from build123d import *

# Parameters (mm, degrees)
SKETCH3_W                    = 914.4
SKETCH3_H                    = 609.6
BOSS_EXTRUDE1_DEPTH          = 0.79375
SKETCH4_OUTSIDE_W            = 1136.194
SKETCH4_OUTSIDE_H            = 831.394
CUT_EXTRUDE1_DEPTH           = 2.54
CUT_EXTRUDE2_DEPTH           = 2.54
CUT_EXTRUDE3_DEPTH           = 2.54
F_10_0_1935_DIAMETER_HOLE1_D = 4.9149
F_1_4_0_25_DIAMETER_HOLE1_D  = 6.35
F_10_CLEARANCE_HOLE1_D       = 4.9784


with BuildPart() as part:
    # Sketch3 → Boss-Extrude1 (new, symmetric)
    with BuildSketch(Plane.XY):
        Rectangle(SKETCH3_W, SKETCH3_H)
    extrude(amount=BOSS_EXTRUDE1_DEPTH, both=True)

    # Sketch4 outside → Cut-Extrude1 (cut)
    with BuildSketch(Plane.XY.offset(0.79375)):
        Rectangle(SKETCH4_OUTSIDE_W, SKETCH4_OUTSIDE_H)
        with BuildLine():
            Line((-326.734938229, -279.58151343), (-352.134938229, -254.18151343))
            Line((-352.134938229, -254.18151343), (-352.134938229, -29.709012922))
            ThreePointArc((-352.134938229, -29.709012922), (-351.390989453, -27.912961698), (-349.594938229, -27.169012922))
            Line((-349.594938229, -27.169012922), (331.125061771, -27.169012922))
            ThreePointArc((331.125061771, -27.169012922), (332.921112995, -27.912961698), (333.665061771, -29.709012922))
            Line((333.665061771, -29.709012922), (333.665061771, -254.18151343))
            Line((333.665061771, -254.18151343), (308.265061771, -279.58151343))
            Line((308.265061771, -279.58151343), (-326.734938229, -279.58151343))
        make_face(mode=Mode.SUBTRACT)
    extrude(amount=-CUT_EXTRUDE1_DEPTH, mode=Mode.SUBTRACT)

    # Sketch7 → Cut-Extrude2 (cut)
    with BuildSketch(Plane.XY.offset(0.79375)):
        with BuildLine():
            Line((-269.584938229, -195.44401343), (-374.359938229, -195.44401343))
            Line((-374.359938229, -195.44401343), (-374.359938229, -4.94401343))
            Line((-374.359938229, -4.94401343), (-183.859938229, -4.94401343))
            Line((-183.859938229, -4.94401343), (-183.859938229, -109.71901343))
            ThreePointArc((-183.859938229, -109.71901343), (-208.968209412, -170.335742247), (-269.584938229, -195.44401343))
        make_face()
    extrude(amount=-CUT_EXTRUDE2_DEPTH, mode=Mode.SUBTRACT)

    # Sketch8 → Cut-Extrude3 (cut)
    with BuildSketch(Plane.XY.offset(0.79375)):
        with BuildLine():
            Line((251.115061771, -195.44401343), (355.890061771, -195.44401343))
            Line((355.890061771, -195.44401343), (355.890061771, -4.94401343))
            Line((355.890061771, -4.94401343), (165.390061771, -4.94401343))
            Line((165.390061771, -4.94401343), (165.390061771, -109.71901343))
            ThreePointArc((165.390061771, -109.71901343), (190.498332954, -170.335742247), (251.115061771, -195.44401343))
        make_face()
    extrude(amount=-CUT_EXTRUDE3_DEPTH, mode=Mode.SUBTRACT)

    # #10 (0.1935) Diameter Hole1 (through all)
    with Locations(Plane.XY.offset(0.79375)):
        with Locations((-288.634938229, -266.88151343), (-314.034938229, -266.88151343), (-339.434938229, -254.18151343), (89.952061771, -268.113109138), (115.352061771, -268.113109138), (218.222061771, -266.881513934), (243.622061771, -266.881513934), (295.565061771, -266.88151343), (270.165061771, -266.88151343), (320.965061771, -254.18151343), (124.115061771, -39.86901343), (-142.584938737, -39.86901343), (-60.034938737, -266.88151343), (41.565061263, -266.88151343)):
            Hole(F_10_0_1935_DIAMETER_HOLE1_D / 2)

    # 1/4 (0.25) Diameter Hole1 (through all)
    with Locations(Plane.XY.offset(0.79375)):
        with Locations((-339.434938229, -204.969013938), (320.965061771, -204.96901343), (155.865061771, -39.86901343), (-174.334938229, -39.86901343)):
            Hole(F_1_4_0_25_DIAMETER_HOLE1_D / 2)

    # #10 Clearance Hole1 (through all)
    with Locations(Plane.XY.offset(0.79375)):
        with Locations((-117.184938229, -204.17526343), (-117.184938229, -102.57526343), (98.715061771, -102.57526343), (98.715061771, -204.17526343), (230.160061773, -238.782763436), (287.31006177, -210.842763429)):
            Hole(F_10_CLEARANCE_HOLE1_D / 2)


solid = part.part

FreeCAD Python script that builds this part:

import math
import FreeCAD as App
import Part
import Sketcher
from FreeCAD import Vector
Q = App.Units.Quantity

doc = App.newDocument("Part")
body = doc.addObject("PartDesign::Body", "Body")

# Sketch on XY plane
sketch1 = body.newObject("Sketcher::SketchObject", "Sketch")
sketch1.AttachmentSupport = (doc.getObject("XY_Plane"), [""])
sketch1.MapMode = "FlatFace"
sketch1.addGeometry(Part.LineSegment(Vector(-457, 305, 0), Vector(-457, -305, 0)), False)
sketch1.addGeometry(Part.LineSegment(Vector(-457, -305, 0), Vector(457, -305, 0)), False)
sketch1.addGeometry(Part.LineSegment(Vector(457, -305, 0), Vector(457, 305, 0)), False)
sketch1.addGeometry(Part.LineSegment(Vector(457, 305, 0), Vector(-457, 305, 0)), False)
sketch1.addConstraint(Sketcher.Constraint("Coincident", 0, 2, 1, 1))
sketch1.addConstraint(Sketcher.Constraint("Coincident", 1, 2, 2, 1))
sketch1.addConstraint(Sketcher.Constraint("Coincident", 2, 2, 3, 1))
sketch1.addConstraint(Sketcher.Constraint("Coincident", 3, 2, 0, 1))
sketch1.addConstraint(Sketcher.Constraint("Vertical", 0))
sketch1.addConstraint(Sketcher.Constraint("Horizontal", 1))
sketch1.addConstraint(Sketcher.Constraint("Vertical", 2))
sketch1.addConstraint(Sketcher.Constraint("Horizontal", 3))
sketch1.addConstraint(Sketcher.Constraint("Symmetric", 0, 2, 2, 2, -1, 1))
sketch1.addConstraint(Sketcher.Constraint("DistanceX", 1, 1, 1, 2, Q("36 in")))
sketch1.addConstraint(Sketcher.Constraint("DistanceY", 0, 2, 0, 1, Q("24 in")))
pad1 = body.newObject("PartDesign::Pad", "Pad")
pad1.Profile = sketch1
pad1.Length = Q("0.0625 in")
pad1.Midplane = True

# Sketch on XY plane
sketch2 = body.newObject("Sketcher::SketchObject", "Sketch001")
sketch2.AttachmentSupport = (doc.getObject("XY_Plane"), [""])
sketch2.MapMode = "FlatFace"
sketch2.AttachmentOffset = App.Placement(Vector(0, 0, 0.03125 * 25.4), App.Rotation())
sketch2.addGeometry(Part.LineSegment(Vector(-568.1, 415.7, 0), Vector(-568.1, -415.7, 0)), False)
sketch2.addGeometry(Part.LineSegment(Vector(-568.1, -415.7, 0), Vector(568.1, -415.7, 0)), False)
sketch2.addGeometry(Part.LineSegment(Vector(568.1, -415.7, 0), Vector(568.1, 415.7, 0)), False)
sketch2.addGeometry(Part.LineSegment(Vector(568.1, 415.7, 0), Vector(-568.1, 415.7, 0)), False)
sketch2.addGeometry(Part.LineSegment(Vector(308.3, -279.6, 0), Vector(-326.7, -279.6, 0)), False)
sketch2.addGeometry(Part.LineSegment(Vector(-326.7, -279.6, 0), Vector(-352.1, -254.2, 0)), False)
sketch2.addGeometry(Part.LineSegment(Vector(-352.1, -254.2, 0), Vector(-352.1, -29.7, 0)), False)
sketch2.addGeometry(Part.ArcOfCircle(Part.Circle(Vector(-349.6, -29.7, 0), Vector(0, 0, 1), 2.5), math.radians(90), math.radians(180)), False)
sketch2.addGeometry(Part.LineSegment(Vector(-349.6, -27.2, 0), Vector(331.1, -27.2, 0)), False)
sketch2.addGeometry(Part.ArcOfCircle(Part.Circle(Vector(331.1, -29.7, 0), Vector(0, 0, 1), 2.5), math.radians(0), math.radians(90)), False)
sketch2.addGeometry(Part.LineSegment(Vector(333.7, -29.7, 0), Vector(333.7, -254.2, 0)), False)
sketch2.addGeometry(Part.LineSegment(Vector(333.7, -254.2, 0), Vector(308.3, -279.6, 0)), False)
sketch2.addConstraint(Sketcher.Constraint("Coincident", 0, 2, 1, 1))
sketch2.addConstraint(Sketcher.Constraint("Coincident", 1, 2, 2, 1))
sketch2.addConstraint(Sketcher.Constraint("Coincident", 2, 2, 3, 1))
sketch2.addConstraint(Sketcher.Constraint("Coincident", 3, 2, 0, 1))
sketch2.addConstraint(Sketcher.Constraint("Coincident", 4, 2, 5, 1))
sketch2.addConstraint(Sketcher.Constraint("Coincident", 5, 2, 6, 1))
sketch2.addConstraint(Sketcher.Constraint("Tangent", 6, 2, 7, 2))
sketch2.addConstraint(Sketcher.Constraint("Tangent", 7, 1, 8, 1))
sketch2.addConstraint(Sketcher.Constraint("Tangent", 8, 2, 9, 2))
sketch2.addConstraint(Sketcher.Constraint("Tangent", 9, 1, 10, 1))
sketch2.addConstraint(Sketcher.Constraint("Coincident", 10, 2, 11, 1))
sketch2.addConstraint(Sketcher.Constraint("Coincident", 11, 2, 4, 1))
sketch2.addConstraint(Sketcher.Constraint("Vertical", 0))
sketch2.addConstraint(Sketcher.Constraint("Horizontal", 1))
sketch2.addConstraint(Sketcher.Constraint("Vertical", 2))
sketch2.addConstraint(Sketcher.Constraint("Horizontal", 3))
sketch2.addConstraint(Sketcher.Constraint("Horizontal", 4))
sketch2.addConstraint(Sketcher.Constraint("Vertical", 6))
sketch2.addConstraint(Sketcher.Constraint("Horizontal", 8))
sketch2.addConstraint(Sketcher.Constraint("Vertical", 10))
sketch2.addConstraint(Sketcher.Constraint("Equal", 7, 9))
sketch2.addConstraint(Sketcher.Constraint("Symmetric", 0, 2, 2, 2, -1, 1))
sketch2.addConstraint(Sketcher.Constraint("Perpendicular", 5, 11))
sketch2.addConstraint(Sketcher.Constraint("Horizontal", 5, 2, 10, 2))
sketch2.addConstraint(Sketcher.Constraint("Equal", 5, 11))
sketch2.addConstraint(Sketcher.Constraint("Radius", 7, Q("0.1 in")))
sketch2.addConstraint(Sketcher.Constraint("DistanceX", 4, 2, 4, 1, Q("25 in")))
sketch2.addConstraint(Sketcher.Constraint("DistanceX", 8, 1, 8, 2, Q("26.8 in")))
sketch2.addConstraint(Sketcher.Constraint("DistanceY", 6, 1, 6, 2, Q("8.8375 in")))
sketch2.addConstraint(Sketcher.Constraint("DistanceX", 1, 1, 1, 2, Q("1136.194 mm")))
sketch2.addConstraint(Sketcher.Constraint("DistanceY", 0, 2, 0, 1, Q("831.394 mm")))
sketch2.addConstraint(Sketcher.Constraint("DistanceX", 7, 3, -1, 1, Q("349.594938 mm")))
sketch2.addConstraint(Sketcher.Constraint("DistanceY", 7, 3, -1, 1, Q("29.709013 mm")))
pocket1 = body.newObject("PartDesign::Pocket", "Pocket")
pocket1.Profile = sketch2
pocket1.Length = Q("0.1 in")

# Sketch on XY plane
sketch3 = body.newObject("Sketcher::SketchObject", "Sketch002")
sketch3.AttachmentSupport = (doc.getObject("XY_Plane"), [""])
sketch3.MapMode = "FlatFace"
sketch3.AttachmentOffset = App.Placement(Vector(0, 0, 0.03125 * 25.4), App.Rotation())
sketch3.addGeometry(Part.LineSegment(Vector(-374, -195, 0), Vector(-270, -195, 0)), False)
sketch3.addGeometry(Part.ArcOfCircle(Part.Circle(Vector(-270, -110, 0), Vector(0, 0, 1), 86), math.radians(-90), math.radians(0)), False)
sketch3.addGeometry(Part.LineSegment(Vector(-184, -110, 0), Vector(-184, -5, 0)), False)
sketch3.addGeometry(Part.LineSegment(Vector(-184, -5, 0), Vector(-374, -5, 0)), False)
sketch3.addGeometry(Part.LineSegment(Vector(-374, -5, 0), Vector(-374, -195, 0)), False)
sketch3.addConstraint(Sketcher.Constraint("Tangent", 0, 2, 1, 1))
sketch3.addConstraint(Sketcher.Constraint("Tangent", 1, 2, 2, 1))
sketch3.addConstraint(Sketcher.Constraint("Coincident", 2, 2, 3, 1))
sketch3.addConstraint(Sketcher.Constraint("Coincident", 3, 2, 4, 1))
sketch3.addConstraint(Sketcher.Constraint("Coincident", 4, 2, 0, 1))
sketch3.addConstraint(Sketcher.Constraint("Horizontal", 0))
sketch3.addConstraint(Sketcher.Constraint("Vertical", 2))
sketch3.addConstraint(Sketcher.Constraint("Horizontal", 3))
sketch3.addConstraint(Sketcher.Constraint("Vertical", 4))
sketch3.addConstraint(Sketcher.Constraint("Equal", 0, 2))
sketch3.addConstraint(Sketcher.Constraint("DistanceX", 3, 2, 3, 1, Q("7.5 in")))
sketch3.addConstraint(Sketcher.Constraint("Radius", 1, Q("3.375 in")))
sketch3.addConstraint(Sketcher.Constraint("DistanceX", 1, 3, -1, 1, Q("269.584938 mm")))
sketch3.addConstraint(Sketcher.Constraint("DistanceY", 1, 3, -1, 1, Q("109.719013 mm")))
pocket2 = body.newObject("PartDesign::Pocket", "Pocket001")
pocket2.Profile = sketch3
pocket2.Length = Q("0.1 in")

# Sketch on XY plane
sketch4 = body.newObject("Sketcher::SketchObject", "Sketch003")
sketch4.AttachmentSupport = (doc.getObject("XY_Plane"), [""])
sketch4.MapMode = "FlatFace"
sketch4.AttachmentOffset = App.Placement(Vector(0, 0, 0.03125 * 25.4), App.Rotation())
sketch4.addGeometry(Part.LineSegment(Vector(251, -195, 0), Vector(356, -195, 0)), False)
sketch4.addGeometry(Part.LineSegment(Vector(356, -195, 0), Vector(356, -5, 0)), False)
sketch4.addGeometry(Part.LineSegment(Vector(356, -5, 0), Vector(165, -5, 0)), False)
sketch4.addGeometry(Part.LineSegment(Vector(165, -5, 0), Vector(165, -110, 0)), False)
sketch4.addGeometry(Part.ArcOfCircle(Part.Circle(Vector(251, -110, 0), Vector(0, 0, 1), 86), math.radians(-180), math.radians(-90)), False)
sketch4.addConstraint(Sketcher.Constraint("Coincident", 0, 2, 1, 1))
sketch4.addConstraint(Sketcher.Constraint("Coincident", 1, 2, 2, 1))
sketch4.addConstraint(Sketcher.Constraint("Coincident", 2, 2, 3, 1))
sketch4.addConstraint(Sketcher.Constraint("Tangent", 3, 2, 4, 1))
sketch4.addConstraint(Sketcher.Constraint("Tangent", 4, 2, 0, 1))
sketch4.addConstraint(Sketcher.Constraint("Horizontal", 0))
sketch4.addConstraint(Sketcher.Constraint("Vertical", 1))
sketch4.addConstraint(Sketcher.Constraint("Horizontal", 2))
sketch4.addConstraint(Sketcher.Constraint("Vertical", 3))
sketch4.addConstraint(Sketcher.Constraint("Equal", 2, 1))
sketch4.addConstraint(Sketcher.Constraint("DistanceX", 2, 2, 2, 1, Q("7.5 in")))
sketch4.addConstraint(Sketcher.Constraint("Radius", 4, Q("3.375 in")))
sketch4.addConstraint(Sketcher.Constraint("DistanceX", -1, 1, 4, 3, Q("251.115062 mm")))
sketch4.addConstraint(Sketcher.Constraint("DistanceY", 4, 3, -1, 1, Q("109.719013 mm")))
pocket3 = body.newObject("PartDesign::Pocket", "Pocket002")
pocket3.Profile = sketch4
pocket3.Length = Q("0.1 in")

# Sketch on XY plane
sketch5 = body.newObject("Sketcher::SketchObject", "Sketch004")
sketch5.AttachmentSupport = (doc.getObject("XY_Plane"), [""])
sketch5.MapMode = "FlatFace"
sketch5.AttachmentOffset = App.Placement(Vector(0, 0, 0.03125 * 25.4), App.Rotation())
sketch5.addGeometry(Part.Circle(Vector(-288.6, -266.9, 0), Vector(0, 0, 1), 2.5), False)
sketch5.addGeometry(Part.Circle(Vector(-314, -266.9, 0), Vector(0, 0, 1), 2.5), False)
sketch5.addGeometry(Part.Circle(Vector(-339.4, -254.2, 0), Vector(0, 0, 1), 2.5), False)
sketch5.addGeometry(Part.Circle(Vector(90, -268.1, 0), Vector(0, 0, 1), 2.5), False)
sketch5.addGeometry(Part.Circle(Vector(115.4, -268.1, 0), Vector(0, 0, 1), 2.5), False)
sketch5.addGeometry(Part.Circle(Vector(218.2, -266.9, 0), Vector(0, 0, 1), 2.5), False)
sketch5.addGeometry(Part.Circle(Vector(243.6, -266.9, 0), Vector(0, 0, 1), 2.5), False)
sketch5.addGeometry(Part.Circle(Vector(295.6, -266.9, 0), Vector(0, 0, 1), 2.5), False)
sketch5.addGeometry(Part.Circle(Vector(270.2, -266.9, 0), Vector(0, 0, 1), 2.5), False)
sketch5.addGeometry(Part.Circle(Vector(321, -254.2, 0), Vector(0, 0, 1), 2.5), False)
sketch5.addGeometry(Part.Circle(Vector(124.1, -39.9, 0), Vector(0, 0, 1), 2.5), False)
sketch5.addGeometry(Part.Circle(Vector(-142.6, -39.9, 0), Vector(0, 0, 1), 2.5), False)
sketch5.addGeometry(Part.Circle(Vector(-60, -266.9, 0), Vector(0, 0, 1), 2.5), False)
sketch5.addGeometry(Part.Circle(Vector(41.6, -266.9, 0), Vector(0, 0, 1), 2.5), False)
sketch5.addConstraint(Sketcher.Constraint("Equal", 0, 1))
sketch5.addConstraint(Sketcher.Constraint("Equal", 1, 2))
sketch5.addConstraint(Sketcher.Constraint("Equal", 2, 3))
sketch5.addConstraint(Sketcher.Constraint("Equal", 3, 4))
sketch5.addConstraint(Sketcher.Constraint("Equal", 4, 5))
sketch5.addConstraint(Sketcher.Constraint("Equal", 5, 6))
sketch5.addConstraint(Sketcher.Constraint("Equal", 6, 7))
sketch5.addConstraint(Sketcher.Constraint("Equal", 7, 8))
sketch5.addConstraint(Sketcher.Constraint("Equal", 8, 9))
sketch5.addConstraint(Sketcher.Constraint("Equal", 9, 10))
sketch5.addConstraint(Sketcher.Constraint("Equal", 10, 11))
sketch5.addConstraint(Sketcher.Constraint("Equal", 11, 12))
sketch5.addConstraint(Sketcher.Constraint("Equal", 12, 13))
sketch5.addConstraint(Sketcher.Constraint("Horizontal", 0, 3, 1, 3))
sketch5.addConstraint(Sketcher.Constraint("Horizontal", 3, 3, 4, 3))
sketch5.addConstraint(Sketcher.Constraint("Horizontal", 1, 3, 5, 3))
sketch5.addConstraint(Sketcher.Constraint("Horizontal", 5, 3, 6, 3))
sketch5.addConstraint(Sketcher.Constraint("Horizontal", 6, 3, 7, 3))
sketch5.addConstraint(Sketcher.Constraint("Horizontal", 7, 3, 8, 3))
sketch5.addConstraint(Sketcher.Constraint("Horizontal", 2, 3, 9, 3))
sketch5.addConstraint(Sketcher.Constraint("Horizontal", 10, 3, 11, 3))
sketch5.addConstraint(Sketcher.Constraint("Horizontal", 8, 3, 12, 3))
sketch5.addConstraint(Sketcher.Constraint("Horizontal", 12, 3, 13, 3))
sketch5.addConstraint(Sketcher.Constraint("DistanceX", 1, 3, 0, 3, Q("1 in")))
sketch5.addConstraint(Sketcher.Constraint("DistanceX", 2, 3, 1, 3, Q("1 in")))
sketch5.addConstraint(Sketcher.Constraint("DistanceX", 3, 3, 4, 3, Q("1 in")))
sketch5.addConstraint(Sketcher.Constraint("DistanceX", 5, 3, 6, 3, Q("1 in")))
sketch5.addConstraint(Sketcher.Constraint("DistanceX", 0, 3, 7, 3, Q("23 in")))
sketch5.addConstraint(Sketcher.Constraint("DistanceX", 8, 3, 7, 3, Q("1 in")))
sketch5.addConstraint(Sketcher.Constraint("DistanceX", 7, 3, 9, 3, Q("1 in")))
sketch5.addConstraint(Sketcher.Constraint("DistanceX", 0, 3, 12, 3, Q("9 in")))
sketch5.addConstraint(Sketcher.Constraint("DistanceX", 12, 3, 13, 3, Q("4 in")))
sketch5.addConstraint(Sketcher.Constraint("Diameter", 0, Q("0.1935 in")))
sketch5.addConstraint(Sketcher.Constraint("DistanceY", 1, 3, 2, 3, Q("0.5 in")))
sketch5.addConstraint(Sketcher.Constraint("DistanceX", 11, 3, 10, 3, Q("10.5 in")))
sketch5.addConstraint(Sketcher.Constraint("DistanceX", 4, 3, 5, 3, Q("4.05 in")))
sketch5.addConstraint(Sketcher.Constraint("DistanceX", 10, 3, 8, 3, Q("5.75 in")))
sketch5.addConstraint(Sketcher.Constraint("DistanceX", 0, 3, 3, 3, Q("14.905 in")))
sketch5.addConstraint(Sketcher.Constraint("DistanceY", 5, 3, 10, 3, Q("8.9375 in")))
sketch5.addConstraint(Sketcher.Constraint("DistanceX", 0, 3, -1, 1, Q("288.634938 mm")))
sketch5.addConstraint(Sketcher.Constraint("DistanceY", 3, 3, -1, 1, Q("268.113109 mm")))
sketch5.addConstraint(Sketcher.Constraint("DistanceY", 0, 3, -1, 1, Q("266.881513 mm")))
doc.recompute()
hole = body.newObject("PartDesign::Hole", "Hole")
hole.Profile = sketch5
hole.ThreadType = "None"
hole.Diameter = Q("0.1935 in")
hole.DepthType = "ThroughAll"

# Sketch on XY plane
sketch6 = body.newObject("Sketcher::SketchObject", "Sketch005")
sketch6.AttachmentSupport = (doc.getObject("XY_Plane"), [""])
sketch6.MapMode = "FlatFace"
sketch6.AttachmentOffset = App.Placement(Vector(0, 0, 0.03125 * 25.4), App.Rotation())
sketch6.addGeometry(Part.Circle(Vector(-339.4, -205, 0), Vector(0, 0, 1), 3.2), False)
sketch6.addGeometry(Part.Circle(Vector(321, -205, 0), Vector(0, 0, 1), 3.2), False)
sketch6.addGeometry(Part.Circle(Vector(155.9, -39.9, 0), Vector(0, 0, 1), 3.2), False)
sketch6.addGeometry(Part.Circle(Vector(-174.3, -39.9, 0), Vector(0, 0, 1), 3.2), False)
sketch6.addConstraint(Sketcher.Constraint("Equal", 0, 1))
sketch6.addConstraint(Sketcher.Constraint("Equal", 1, 2))
sketch6.addConstraint(Sketcher.Constraint("Equal", 2, 3))
sketch6.addConstraint(Sketcher.Constraint("Horizontal", 0, 3, 1, 3))
sketch6.addConstraint(Sketcher.Constraint("Horizontal", 2, 3, 3, 3))
sketch6.addConstraint(Sketcher.Constraint("Diameter", 0, Q("0.25 in")))
sketch6.addConstraint(Sketcher.Constraint("DistanceX", 0, 3, 1, 3, Q("26 in")))
sketch6.addConstraint(Sketcher.Constraint("DistanceX", 3, 3, 2, 3, Q("13 in")))
sketch6.addConstraint(Sketcher.Constraint("DistanceX", 2, 3, 1, 3, Q("6.5 in")))
sketch6.addConstraint(Sketcher.Constraint("DistanceY", 1, 3, 2, 3, Q("6.5 in")))
sketch6.addConstraint(Sketcher.Constraint("DistanceX", 0, 3, -1, 1, Q("339.434938 mm")))
sketch6.addConstraint(Sketcher.Constraint("DistanceY", 0, 3, -1, 1, Q("204.969014 mm")))
doc.recompute()
hole2 = body.newObject("PartDesign::Hole", "Hole001")
hole2.Profile = sketch6
hole2.ThreadType = "None"
hole2.Diameter = Q("0.25 in")
hole2.DepthType = "ThroughAll"

# Sketch on XY plane
sketch7 = body.newObject("Sketcher::SketchObject", "Sketch006")
sketch7.AttachmentSupport = (doc.getObject("XY_Plane"), [""])
sketch7.MapMode = "FlatFace"
sketch7.AttachmentOffset = App.Placement(Vector(0, 0, 0.03125 * 25.4), App.Rotation())
sketch7.addGeometry(Part.Circle(Vector(-117.2, -204.2, 0), Vector(0, 0, 1), 2.5), False)
sketch7.addGeometry(Part.Circle(Vector(-117.2, -102.6, 0), Vector(0, 0, 1), 2.5), False)
sketch7.addGeometry(Part.Circle(Vector(98.7, -102.6, 0), Vector(0, 0, 1), 2.5), False)
sketch7.addGeometry(Part.Circle(Vector(98.7, -204.2, 0), Vector(0, 0, 1), 2.5), False)
sketch7.addGeometry(Part.Circle(Vector(230.2, -238.8, 0), Vector(0, 0, 1), 2.5), False)
sketch7.addGeometry(Part.Circle(Vector(287.3, -210.8, 0), Vector(0, 0, 1), 2.5), False)
sketch7.addConstraint(Sketcher.Constraint("Equal", 0, 1))
sketch7.addConstraint(Sketcher.Constraint("Equal", 1, 2))
sketch7.addConstraint(Sketcher.Constraint("Equal", 2, 3))
sketch7.addConstraint(Sketcher.Constraint("Equal", 3, 4))
sketch7.addConstraint(Sketcher.Constraint("Equal", 4, 5))
sketch7.addConstraint(Sketcher.Constraint("Horizontal", 1, 3, 2, 3))
sketch7.addConstraint(Sketcher.Constraint("Horizontal", 0, 3, 3, 3))
sketch7.addConstraint(Sketcher.Constraint("Vertical", 0, 3, 1, 3))
sketch7.addConstraint(Sketcher.Constraint("Vertical", 2, 3, 3, 3))
sketch7.addConstraint(Sketcher.Constraint("Diameter", 0, Q("0.196 in")))
sketch7.addConstraint(Sketcher.Constraint("DistanceY", 0, 3, 1, 3, Q("4 in")))
sketch7.addConstraint(Sketcher.Constraint("DistanceX", 1, 3, 2, 3, Q("8.5 in")))
sketch7.addConstraint(Sketcher.Constraint("DistanceY", 4, 3, 5, 3, Q("1.1 in")))
sketch7.addConstraint(Sketcher.Constraint("DistanceX", 4, 3, 5, 3, Q("2.25 in")))
sketch7.addConstraint(Sketcher.Constraint("DistanceX", 3, 3, 4, 3, Q("5.175 in")))
sketch7.addConstraint(Sketcher.Constraint("DistanceY", 4, 3, 3, 3, Q("1.3625 in")))
sketch7.addConstraint(Sketcher.Constraint("DistanceX", 0, 3, -1, 1, Q("117.184938 mm")))
sketch7.addConstraint(Sketcher.Constraint("DistanceY", 0, 3, -1, 1, Q("204.175263 mm")))
doc.recompute()
hole3 = body.newObject("PartDesign::Hole", "Hole002")
hole3.Profile = sketch7
hole3.ThreadType = "None"
hole3.Diameter = Q("0.196 in")
hole3.DepthType = "ThroughAll"

doc.recompute()
